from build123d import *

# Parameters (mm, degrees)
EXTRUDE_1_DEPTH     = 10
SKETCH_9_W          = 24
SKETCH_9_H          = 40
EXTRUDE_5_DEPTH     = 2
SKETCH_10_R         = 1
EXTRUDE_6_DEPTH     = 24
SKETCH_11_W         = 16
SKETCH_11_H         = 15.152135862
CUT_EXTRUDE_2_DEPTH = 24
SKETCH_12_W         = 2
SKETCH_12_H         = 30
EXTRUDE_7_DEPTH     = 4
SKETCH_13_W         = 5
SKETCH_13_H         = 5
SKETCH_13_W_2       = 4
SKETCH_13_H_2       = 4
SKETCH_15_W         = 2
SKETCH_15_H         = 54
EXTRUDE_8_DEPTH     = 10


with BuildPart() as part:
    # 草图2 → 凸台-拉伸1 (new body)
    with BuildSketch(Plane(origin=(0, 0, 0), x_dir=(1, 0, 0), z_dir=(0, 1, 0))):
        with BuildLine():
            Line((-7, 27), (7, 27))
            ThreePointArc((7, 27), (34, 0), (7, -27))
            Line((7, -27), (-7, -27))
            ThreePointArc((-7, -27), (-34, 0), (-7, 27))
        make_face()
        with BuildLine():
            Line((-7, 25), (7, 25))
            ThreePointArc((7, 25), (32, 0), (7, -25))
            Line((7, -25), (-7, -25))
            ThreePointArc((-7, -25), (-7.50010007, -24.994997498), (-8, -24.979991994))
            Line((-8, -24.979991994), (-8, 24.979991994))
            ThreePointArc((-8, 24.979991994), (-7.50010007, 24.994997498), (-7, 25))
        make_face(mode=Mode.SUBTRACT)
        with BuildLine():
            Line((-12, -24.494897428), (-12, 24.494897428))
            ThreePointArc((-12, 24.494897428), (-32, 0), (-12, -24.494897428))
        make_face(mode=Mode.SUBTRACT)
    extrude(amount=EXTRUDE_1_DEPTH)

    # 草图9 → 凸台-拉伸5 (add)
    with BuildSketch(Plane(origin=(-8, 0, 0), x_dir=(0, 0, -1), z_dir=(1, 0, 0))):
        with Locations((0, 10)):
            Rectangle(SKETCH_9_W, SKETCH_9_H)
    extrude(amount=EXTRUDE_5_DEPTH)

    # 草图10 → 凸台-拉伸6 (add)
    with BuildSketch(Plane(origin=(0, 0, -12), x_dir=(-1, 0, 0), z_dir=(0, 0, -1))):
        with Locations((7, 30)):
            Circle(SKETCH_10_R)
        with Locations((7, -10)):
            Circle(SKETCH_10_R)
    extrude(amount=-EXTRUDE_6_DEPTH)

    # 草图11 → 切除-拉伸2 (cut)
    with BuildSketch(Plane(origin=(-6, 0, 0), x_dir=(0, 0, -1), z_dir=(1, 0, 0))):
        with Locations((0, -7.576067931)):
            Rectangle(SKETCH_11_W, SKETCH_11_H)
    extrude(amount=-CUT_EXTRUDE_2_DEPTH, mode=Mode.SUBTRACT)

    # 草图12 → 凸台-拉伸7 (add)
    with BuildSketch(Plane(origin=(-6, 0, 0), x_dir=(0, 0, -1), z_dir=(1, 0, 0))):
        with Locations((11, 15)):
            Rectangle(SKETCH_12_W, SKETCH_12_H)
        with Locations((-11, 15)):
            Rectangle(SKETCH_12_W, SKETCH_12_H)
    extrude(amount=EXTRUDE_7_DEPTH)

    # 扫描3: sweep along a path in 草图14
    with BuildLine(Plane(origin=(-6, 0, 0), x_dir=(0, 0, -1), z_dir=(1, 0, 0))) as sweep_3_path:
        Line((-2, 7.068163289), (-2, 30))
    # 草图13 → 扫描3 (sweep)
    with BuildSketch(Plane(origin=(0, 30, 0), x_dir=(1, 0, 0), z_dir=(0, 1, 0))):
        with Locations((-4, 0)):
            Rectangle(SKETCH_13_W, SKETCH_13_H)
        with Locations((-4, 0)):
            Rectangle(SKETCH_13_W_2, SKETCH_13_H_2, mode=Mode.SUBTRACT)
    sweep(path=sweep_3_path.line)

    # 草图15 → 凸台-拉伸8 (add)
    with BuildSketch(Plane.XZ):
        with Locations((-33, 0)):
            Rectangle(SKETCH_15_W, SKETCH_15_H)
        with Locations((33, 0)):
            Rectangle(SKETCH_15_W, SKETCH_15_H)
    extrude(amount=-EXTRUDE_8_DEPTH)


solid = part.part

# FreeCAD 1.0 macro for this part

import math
import FreeCAD as App
import Part
import Sketcher
from FreeCAD import Vector
Q = App.Units.Quantity

doc = App.newDocument("Part")
body = doc.addObject("PartDesign::Body", "Body")

# Sketch on XZ plane
sketch1 = body.newObject("Sketcher::SketchObject", "Sketch")
sketch1.AttachmentSupport = (doc.getObject("XZ_Plane"), [""])
sketch1.MapMode = "FlatFace"
sketch1.addGeometry(Part.LineSegment(Vector(7, -27, 0), Vector(-7, -27, 0)), False)
sketch1.addGeometry(Part.ArcOfCircle(Part.Circle(Vector(-7, 0, 0), Vector(0, 0, 1), 27), math.radians(90), math.radians(270)), False)
sketch1.addGeometry(Part.LineSegment(Vector(-7, 27, 0), Vector(7, 27, 0)), False)
sketch1.addGeometry(Part.ArcOfCircle(Part.Circle(Vector(7, 0, 0), Vector(0, 0, 1), 27), math.radians(-90), math.radians(90)), False)
sketch1.addGeometry(Part.LineSegment(Vector(-7, -25, 0), Vector(7, -25, 0)), False)
sketch1.addGeometry(Part.ArcOfCircle(Part.Circle(Vector(7, 0, 0), Vector(0, 0, 1), 25), math.radians(-90), math.radians(90)), False)
sketch1.addGeometry(Part.LineSegment(Vector(7, 25, 0), Vector(-7, 25, 0)), False)
sketch1.addGeometry(Part.ArcOfCircle(Part.Circle(Vector(-7, 0, 0), Vector(0, 0, 1), 25), math.radians(90), math.radians(92.29)), False)
sketch1.addGeometry(Part.LineSegment(Vector(-8, 25, 0), Vector(-8, -25, 0)), False)
sketch1.addGeometry(Part.ArcOfCircle(Part.Circle(Vector(-7, 0, 0), Vector(0, 0, 1), 25), math.radians(-92.29), math.radians(-90)), False)
sketch1.addGeometry(Part.ArcOfCircle(Part.Circle(Vector(-7, 0, 0), Vector(0, 0, 1), 25), math.radians(102), math.radians(258)), False)
sketch1.addGeometry(Part.LineSegment(Vector(-12, -24.5, 0), Vector(-12, 24.5, 0)), False)
sketch1.addConstraint(Sketcher.Constraint("Tangent", 0, 2, 1, 2))
sketch1.addConstraint(Sketcher.Constraint("Tangent", 1, 1, 2, 1))
sketch1.addConstraint(Sketcher.Constraint("Tangent", 2, 2, 3, 2))
sketch1.addConstraint(Sketcher.Constraint("Tangent", 3, 1, 0, 1))
sketch1.addConstraint(Sketcher.Constraint("Tangent", 4, 2, 5, 1))
sketch1.addConstraint(Sketcher.Constraint("Tangent", 5, 2, 6, 1))
sketch1.addConstraint(Sketcher.Constraint("Tangent", 6, 2, 7, 1))
sketch1.addConstraint(Sketcher.Constraint("Coincident", 7, 2, 8, 1))
sketch1.addConstraint(Sketcher.Constraint("Coincident", 8, 2, 9, 1))
sketch1.addConstraint(Sketcher.Constraint("Tangent", 9, 2, 4, 1))
sketch1.addConstraint(Sketcher.Constraint("Coincident", 10, 1, 11, 2))
sketch1.addConstraint(Sketcher.Constraint("Coincident", 11, 1, 10, 2))
sketch1.addConstraint(Sketcher.Constraint("Horizontal", 0))
sketch1.addConstraint(Sketcher.Constraint("Horizontal", 2))
sketch1.addConstraint(Sketcher.Constraint("Horizontal", 4))
sketch1.addConstraint(Sketcher.Constraint("Horizontal", 6))
sketch1.addConstraint(Sketcher.Constraint("Vertical", 8))
sketch1.addConstraint(Sketcher.Constraint("Vertical", 11))
sketch1.addConstraint(Sketcher.Constraint("Coincident", 5, 3, 3, 3))
sketch1.addConstraint(Sketcher.Constraint("Coincident", 7, 3, 1, 3))
sketch1.addConstraint(Sketcher.Constraint("Coincident", 9, 3, 1, 3))
sketch1.addConstraint(Sketcher.Constraint("Coincident", 10, 3, 1, 3))
sketch1.addConstraint(Sketcher.Constraint("Equal", 9, 10))
sketch1.addConstraint(Sketcher.Constraint("Symmetric", 1, 3, 3, 3, -1, 1))
sketch1.addConstraint(Sketcher.Constraint("Radius", 1, Q("27 mm")))
sketch1.addConstraint(Sketcher.Constraint("Radius", 5, Q("25 mm")))
sketch1.addConstraint(Sketcher.Constraint("DistanceX", 0, 2, 0, 1, Q("14 mm")))
sketch1.addConstraint(Sketcher.Constraint("DistanceX", 7, 2, -1, 1, Q("8 mm")))
sketch1.addConstraint(Sketcher.Constraint("DistanceX", 10, 1, -1, 1, Q("12 mm")))
pad1 = body.newObject("PartDesign::Pad", "Pad")
pad1.Profile = sketch1
pad1.Length = 10
pad1.Reversed = True

# Sketch on YZ plane
sketch2 = body.newObject("Sketcher::SketchObject", "Sketch001")
sketch2.AttachmentSupport = (doc.getObject("YZ_Plane"), [""])
sketch2.MapMode = "FlatFace"
sketch2.AttachmentOffset = App.Placement(Vector(0, 0, -8), App.Rotation())
sketch2.addGeometry(Part.LineSegment(Vector(30, 12, 0), Vector(-10, 12, 0)), False)
sketch2.addGeometry(Part.LineSegment(Vector(-10, 12, 0), Vector(-10, -12, 0)), False)
sketch2.addGeometry(Part.LineSegment(Vector(-10, -12, 0), Vector(30, -12, 0)), False)
sketch2.addGeometry(Part.LineSegment(Vector(30, -12, 0), Vector(30, 12, 0)), False)
sketch2.addConstraint(Sketcher.Constraint("Coincident", 0, 2, 1, 1))
sketch2.addConstraint(Sketcher.Constraint("Coincident", 1, 2, 2, 1))
sketch2.addConstraint(Sketcher.Constraint("Coincident", 2, 2, 3, 1))
sketch2.addConstraint(Sketcher.Constraint("Coincident", 3, 2, 0, 1))
sketch2.addConstraint(Sketcher.Constraint("Horizontal", 0))
sketch2.addConstraint(Sketcher.Constraint("Vertical", 1))
sketch2.addConstraint(Sketcher.Constraint("Horizontal", 2))
sketch2.addConstraint(Sketcher.Constraint("Vertical", 3))
sketch2.addConstraint(Sketcher.Constraint("DistanceX", 0, 2, 0, 1, Q("40 mm")))
sketch2.addConstraint(Sketcher.Constraint("DistanceY", 1, 2, 1, 1, Q("24 mm")))
sketch2.addConstraint(Sketcher.Constraint("DistanceX", 0, 2, -1, 1, Q("10 mm")))
sketch2.addConstraint(Sketcher.Constraint("DistanceY", -1, 1, 0, 2, Q("12 mm")))
pad2 = body.newObject("PartDesign::Pad", "Pad001")
pad2.Profile = sketch2
pad2.Length = 2

# Sketch on XY plane
sketch3 = body.newObject("Sketcher::SketchObject", "Sketch002")
sketch3.AttachmentSupport = (doc.getObject("XY_Plane"), [""])
sketch3.MapMode = "FlatFace"
sketch3.AttachmentOffset = App.Placement(Vector(0, 0, -12), App.Rotation())
sketch3.addGeometry(Part.Circle(Vector(-7, 30, 0), Vector(0, 0, 1), 1), False)
sketch3.addGeometry(Part.Circle(Vector(-7, -10, 0), Vector(0, 0, 1), 1), False)
sketch3.addConstraint(Sketcher.Constraint("Equal", 0, 1))
sketch3.addConstraint(Sketcher.Constraint("Vertical", 0, 3, 1, 3))
sketch3.addConstraint(Sketcher.Constraint("Diameter", 0, Q("2 mm")))
sketch3.addConstraint(Sketcher.Constraint("DistanceX", 0, 3, -1, 1, Q("7 mm")))
sketch3.addConstraint(Sketcher.Constraint("DistanceY", -1, 1, 0, 3, Q("30 mm")))
sketch3.addConstraint(Sketcher.Constraint("DistanceY", 1, 3, -1, 1, Q("10 mm")))
pad3 = body.newObject("PartDesign::Pad", "Pad002")
pad3.Profile = sketch3
pad3.Length = 24

# Sketch on YZ plane
sketch4 = body.newObject("Sketcher::SketchObject", "Sketch003")
sketch4.AttachmentSupport = (doc.getObject("YZ_Plane"), [""])
sketch4.MapMode = "FlatFace"
sketch4.AttachmentOffset = App.Placement(Vector(0, 0, -6), App.Rotation())
sketch4.addGeometry(Part.LineSegment(Vector(0, 8, 0), Vector(-15, 8, 0)), False)
sketch4.addGeometry(Part.LineSegment(Vector(-15, 8, 0), Vector(-15, -8, 0)), False)
sketch4.addGeometry(Part.LineSegment(Vector(-15, -8, 0), Vector(0, -8, 0)), False)
sketch4.addGeometry(Part.LineSegment(Vector(0, -8, 0), Vector(0, 8, 0)), False)
sketch4.addConstraint(Sketcher.Constraint("Coincident", 0, 2, 1, 1))
sketch4.addConstraint(Sketcher.Constraint("Coincident", 1, 2, 2, 1))
sketch4.addConstraint(Sketcher.Constraint("Coincident", 2, 2, 3, 1))
sketch4.addConstraint(Sketcher.Constraint("Coincident", 3, 2, 0, 1))
sketch4.addConstraint(Sketcher.Constraint("Horizontal", 0))
sketch4.addConstraint(Sketcher.Constraint("Vertical", 1))
sketch4.addConstraint(Sketcher.Constraint("Horizontal", 2))
sketch4.addConstraint(Sketcher.Constraint("Vertical", 3))
sketch4.addConstraint(Sketcher.Constraint("Symmetric", 2, 2, 3, 2, -1, 1))
sketch4.addConstraint(Sketcher.Constraint("DistanceY", 1, 2, 1, 1, Q("16 mm")))
sketch4.addConstraint(Sketcher.Constraint("DistanceX", 0, 2, 0, 1, Q("15.152136 mm")))
pocket1 = body.newObject("PartDesign::Pocket", "Pocket")
pocket1.Profile = sketch4
pocket1.Length = 24

# Sketch on YZ plane
sketch5 = body.newObject("Sketcher::SketchObject", "Sketch004")
sketch5.AttachmentSupport = (doc.getObject("YZ_Plane"), [""])
sketch5.MapMode = "FlatFace"
sketch5.AttachmentOffset = App.Placement(Vector(0, 0, -6), App.Rotation())
sketch5.addGeometry(Part.LineSegment(Vector(30, -10, 0), Vector(0, -10, 0)), False)
sketch5.addGeometry(Part.LineSegment(Vector(0, -10, 0), Vector(0, -12, 0)), False)
sketch5.addGeometry(Part.LineSegment(Vector(0, -12, 0), Vector(30, -12, 0)), False)
sketch5.addGeometry(Part.LineSegment(Vector(30, -12, 0), Vector(30, -10, 0)), False)
sketch5.addGeometry(Part.LineSegment(Vector(30, 12, 0), Vector(0, 12, 0)), False)
sketch5.addGeometry(Part.LineSegment(Vector(0, 12, 0), Vector(0, 10, 0)), False)
sketch5.addGeometry(Part.LineSegment(Vector(0, 10, 0), Vector(30, 10, 0)), False)
sketch5.addGeometry(Part.LineSegment(Vector(30, 10, 0), Vector(30, 12, 0)), False)
sketch5.addConstraint(Sketcher.Constraint("Coincident", 0, 2, 1, 1))
sketch5.addConstraint(Sketcher.Constraint("Coincident", 1, 2, 2, 1))
sketch5.addConstraint(Sketcher.Constraint("Coincident", 2, 2, 3, 1))
sketch5.addConstraint(Sketcher.Constraint("Coincident", 3, 2, 0, 1))
sketch5.addConstraint(Sketcher.Constraint("Coincident", 4, 2, 5, 1))
sketch5.addConstraint(Sketcher.Constraint("Coincident", 5, 2, 6, 1))
sketch5.addConstraint(Sketcher.Constraint("Coincident", 6, 2, 7, 1))
sketch5.addConstraint(Sketcher.Constraint("Coincident", 7, 2, 4, 1))
sketch5.addConstraint(Sketcher.Constraint("Horizontal", 0))
sketch5.addConstraint(Sketcher.Constraint("Vertical", 1))
sketch5.addConstraint(Sketcher.Constraint("Horizontal", 2))
sketch5.addConstraint(Sketcher.Constraint("Vertical", 3))
sketch5.addConstraint(Sketcher.Constraint("Horizontal", 4))
sketch5.addConstraint(Sketcher.Constraint("Vertical", 5))
sketch5.addConstraint(Sketcher.Constraint("Horizontal", 6))
sketch5.addConstraint(Sketcher.Constraint("Vertical", 7))
sketch5.addConstraint(Sketcher.Constraint("Symmetric", 1, 2, 4, 2, -1, 1))
sketch5.addConstraint(Sketcher.Constraint("Symmetric", 0, 2, 5, 2, -1))
sketch5.addConstraint(Sketcher.Constraint("Vertical", 3, 2, 6, 2))
sketch5.addConstraint(Sketcher.Constraint("DistanceX", 0, 2, 0, 1, Q("30 mm")))
sketch5.addConstraint(Sketcher.Constraint("DistanceY", 1, 2, 1, 1, Q("2 mm")))
sketch5.addConstraint(Sketcher.Constraint("DistanceY", 0, 2, -1, 1, Q("10 mm")))
pad4 = body.newObject("PartDesign::Pad", "Pad003")
pad4.Profile = sketch5
pad4.Length = 4

# Sketch on XZ plane
sketch6 = body.newObject("Sketcher::SketchObject", "Sketch005")
sketch6.AttachmentSupport = (doc.getObject("XZ_Plane"), [""])
sketch6.MapMode = "FlatFace"
sketch6.AttachmentOffset = App.Placement(Vector(0, 0, -30), App.Rotation())
sketch6.addGeometry(Part.LineSegment(Vector(-6.5, -2.5, 0), Vector(-6.5, 2.5, 0)), False)
sketch6.addGeometry(Part.LineSegment(Vector(-6.5, 2.5, 0), Vector(-1.5, 2.5, 0)), False)
sketch6.addGeometry(Part.LineSegment(Vector(-1.5, 2.5, 0), Vector(-1.5, -2.5, 0)), False)
sketch6.addGeometry(Part.LineSegment(Vector(-1.5, -2.5, 0), Vector(-6.5, -2.5, 0)), False)
sketch6.addGeometry(Part.LineSegment(Vector(-2, 2, 0), Vector(-6, 2, 0)), False)
sketch6.addGeometry(Part.LineSegment(Vector(-6, 2, 0), Vector(-6, -2, 0)), False)
sketch6.addGeometry(Part.LineSegment(Vector(-6, -2, 0), Vector(-2, -2, 0)), False)
sketch6.addGeometry(Part.LineSegment(Vector(-2, -2, 0), Vector(-2, 2, 0)), False)
sketch6.addConstraint(Sketcher.Constraint("Coincident", 0, 2, 1, 1))
sketch6.addConstraint(Sketcher.Constraint("Coincident", 1, 2, 2, 1))
sketch6.addConstraint(Sketcher.Constraint("Coincident", 2, 2, 3, 1))
sketch6.addConstraint(Sketcher.Constraint("Coincident", 3, 2, 0, 1))
sketch6.addConstraint(Sketcher.Constraint("Coincident", 4, 2, 5, 1))
sketch6.addConstraint(Sketcher.Constraint("Coincident", 5, 2, 6, 1))
sketch6.addConstraint(Sketcher.Constraint("Coincident", 6, 2, 7, 1))
sketch6.addConstraint(Sketcher.Constraint("Coincident", 7, 2, 4, 1))
sketch6.addConstraint(Sketcher.Constraint("Vertical", 0))
sketch6.addConstraint(Sketcher.Constraint("Horizontal", 1))
sketch6.addConstraint(Sketcher.Constraint("Vertical", 2))
sketch6.addConstraint(Sketcher.Constraint("Horizontal", 3))
sketch6.addConstraint(Sketcher.Constraint("Horizontal", 4))
sketch6.addConstraint(Sketcher.Constraint("Vertical", 5))
sketch6.addConstraint(Sketcher.Constraint("Horizontal", 6))
sketch6.addConstraint(Sketcher.Constraint("Vertical", 7))
sketch6.addConstraint(Sketcher.Constraint("Equal", 3, 0))
sketch6.addConstraint(Sketcher.Constraint("Equal", 6, 5))
sketch6.addConstraint(Sketcher.Constraint("DistanceX", 1, 1, 1, 2, Q("5 mm")))
sketch6.addConstraint(Sketcher.Constraint("DistanceX", 4, 2, 4, 1, Q("4 mm")))
sketch6.addConstraint(Sketcher.Constraint("DistanceX", 4, 2, -1, 1, Q("6 mm")))
sketch6.addConstraint(Sketcher.Constraint("DistanceY", -1, 1, 4, 2, Q("2 mm")))
sketch6.addConstraint(Sketcher.Constraint("DistanceX", 0, 2, -1, 1, Q("6.5 mm")))
sketch6.addConstraint(Sketcher.Constraint("DistanceY", -1, 1, 0, 2, Q("2.5 mm")))

# Sketch on XY plane
sketch7 = body.newObject("Sketcher::SketchObject", "Sketch006")
sketch7.AttachmentSupport = (doc.getObject("XY_Plane"), [""])
sketch7.MapMode = "FlatFace"
sketch7.AttachmentOffset = App.Placement(Vector(0, 0, 2), App.Rotation())
sketch7.addGeometry(Part.LineSegment(Vector(-6, 7, 0), Vector(-6, 30, 0)), False)
sketch7.addConstraint(Sketcher.Constraint("Vertical", 0))
sketch7.addConstraint(Sketcher.Constraint("DistanceX", 0, 1, -1, 1, Q("6 mm")))
sketch7.addConstraint(Sketcher.Constraint("DistanceY", -1, 1, 0, 2, Q("30 mm")))
sketch7.addConstraint(Sketcher.Constraint("DistanceY", 0, 1, 0, 2, Q("22.931837 mm")))
doc.recompute()

additivepipe = body.newObject("PartDesign::AdditivePipe", "AdditivePipe")
additivepipe.Profile = sketch6
additivepipe.Spine = (sketch7, ["Edge1"])

# Sketch on XZ plane
sketch8 = body.newObject("Sketcher::SketchObject", "Sketch007")
sketch8.AttachmentSupport = (doc.getObject("XZ_Plane"), [""])
sketch8.MapMode = "FlatFace"
sketch8.addGeometry(Part.LineSegment(Vector(-34, 27, 0), Vector(-34, -27, 0)), False)
sketch8.addGeometry(Part.LineSegment(Vector(-34, -27, 0), Vector(-32, -27, 0)), False)
sketch8.addGeometry(Part.LineSegment(Vector(-32, -27, 0), Vector(-32, 27, 0)), False)
sketch8.addGeometry(Part.LineSegment(Vector(-32, 27, 0), Vector(-34, 27, 0)), False)
sketch8.addGeometry(Part.LineSegment(Vector(32, 27, 0), Vector(32, -27, 0)), False)
sketch8.addGeometry(Part.LineSegment(Vector(32, -27, 0), Vector(34, -27, 0)), False)
sketch8.addGeometry(Part.LineSegment(Vector(34, -27, 0), Vector(34, 27, 0)), False)
sketch8.addGeometry(Part.LineSegment(Vector(34, 27, 0), Vector(32, 27, 0)), False)
sketch8.addConstraint(Sketcher.Constraint("Coincident", 0, 2, 1, 1))
sketch8.addConstraint(Sketcher.Constraint("Coincident", 1, 2, 2, 1))
sketch8.addConstraint(Sketcher.Constraint("Coincident", 2, 2, 3, 1))
sketch8.addConstraint(Sketcher.Constraint("Coincident", 3, 2, 0, 1))
sketch8.addConstraint(Sketcher.Constraint("Coincident", 4, 2, 5, 1))
sketch8.addConstraint(Sketcher.Constraint("Coincident", 5, 2, 6, 1))
sketch8.addConstraint(Sketcher.Constraint("Coincident", 6, 2, 7, 1))
sketch8.addConstraint(Sketcher.Constraint("Coincident", 7, 2, 4, 1))
sketch8.addConstraint(Sketcher.Constraint("Vertical", 0))
sketch8.addConstraint(Sketcher.Constraint("Horizontal", 1))
sketch8.addConstraint(Sketcher.Constraint("Vertical", 2))
sketch8.addConstraint(Sketcher.Constraint("Horizontal", 3))
sketch8.addConstraint(Sketcher.Constraint("Vertical", 4))
sketch8.addConstraint(Sketcher.Constraint("Horizontal", 5))
sketch8.addConstraint(Sketcher.Constraint("Vertical", 6))
sketch8.addConstraint(Sketcher.Constraint("Horizontal", 7))
sketch8.addConstraint(Sketcher.Constraint("Symmetric", 2, 2, 4, 2, -1, 1))
sketch8.addConstraint(Sketcher.Constraint("Symmetric", 0, 2, 6, 2, -1, 1))
sketch8.addConstraint(Sketcher.Constraint("Horizontal", 1, 2, 4, 2))
sketch8.addConstraint(Sketcher.Constraint("DistanceX", 1, 1, 1, 2, Q("2 mm")))
sketch8.addConstraint(Sketcher.Constraint("DistanceY", 0, 2, 0, 1, Q("54 mm")))
sketch8.addConstraint(Sketcher.Constraint("DistanceX", 0, 2, -1, 1, Q("34 mm")))
pad5 = body.newObject("PartDesign::Pad", "Pad004")
pad5.Profile = sketch8
pad5.Length = 10
pad5.Reversed = True

doc.recompute()
